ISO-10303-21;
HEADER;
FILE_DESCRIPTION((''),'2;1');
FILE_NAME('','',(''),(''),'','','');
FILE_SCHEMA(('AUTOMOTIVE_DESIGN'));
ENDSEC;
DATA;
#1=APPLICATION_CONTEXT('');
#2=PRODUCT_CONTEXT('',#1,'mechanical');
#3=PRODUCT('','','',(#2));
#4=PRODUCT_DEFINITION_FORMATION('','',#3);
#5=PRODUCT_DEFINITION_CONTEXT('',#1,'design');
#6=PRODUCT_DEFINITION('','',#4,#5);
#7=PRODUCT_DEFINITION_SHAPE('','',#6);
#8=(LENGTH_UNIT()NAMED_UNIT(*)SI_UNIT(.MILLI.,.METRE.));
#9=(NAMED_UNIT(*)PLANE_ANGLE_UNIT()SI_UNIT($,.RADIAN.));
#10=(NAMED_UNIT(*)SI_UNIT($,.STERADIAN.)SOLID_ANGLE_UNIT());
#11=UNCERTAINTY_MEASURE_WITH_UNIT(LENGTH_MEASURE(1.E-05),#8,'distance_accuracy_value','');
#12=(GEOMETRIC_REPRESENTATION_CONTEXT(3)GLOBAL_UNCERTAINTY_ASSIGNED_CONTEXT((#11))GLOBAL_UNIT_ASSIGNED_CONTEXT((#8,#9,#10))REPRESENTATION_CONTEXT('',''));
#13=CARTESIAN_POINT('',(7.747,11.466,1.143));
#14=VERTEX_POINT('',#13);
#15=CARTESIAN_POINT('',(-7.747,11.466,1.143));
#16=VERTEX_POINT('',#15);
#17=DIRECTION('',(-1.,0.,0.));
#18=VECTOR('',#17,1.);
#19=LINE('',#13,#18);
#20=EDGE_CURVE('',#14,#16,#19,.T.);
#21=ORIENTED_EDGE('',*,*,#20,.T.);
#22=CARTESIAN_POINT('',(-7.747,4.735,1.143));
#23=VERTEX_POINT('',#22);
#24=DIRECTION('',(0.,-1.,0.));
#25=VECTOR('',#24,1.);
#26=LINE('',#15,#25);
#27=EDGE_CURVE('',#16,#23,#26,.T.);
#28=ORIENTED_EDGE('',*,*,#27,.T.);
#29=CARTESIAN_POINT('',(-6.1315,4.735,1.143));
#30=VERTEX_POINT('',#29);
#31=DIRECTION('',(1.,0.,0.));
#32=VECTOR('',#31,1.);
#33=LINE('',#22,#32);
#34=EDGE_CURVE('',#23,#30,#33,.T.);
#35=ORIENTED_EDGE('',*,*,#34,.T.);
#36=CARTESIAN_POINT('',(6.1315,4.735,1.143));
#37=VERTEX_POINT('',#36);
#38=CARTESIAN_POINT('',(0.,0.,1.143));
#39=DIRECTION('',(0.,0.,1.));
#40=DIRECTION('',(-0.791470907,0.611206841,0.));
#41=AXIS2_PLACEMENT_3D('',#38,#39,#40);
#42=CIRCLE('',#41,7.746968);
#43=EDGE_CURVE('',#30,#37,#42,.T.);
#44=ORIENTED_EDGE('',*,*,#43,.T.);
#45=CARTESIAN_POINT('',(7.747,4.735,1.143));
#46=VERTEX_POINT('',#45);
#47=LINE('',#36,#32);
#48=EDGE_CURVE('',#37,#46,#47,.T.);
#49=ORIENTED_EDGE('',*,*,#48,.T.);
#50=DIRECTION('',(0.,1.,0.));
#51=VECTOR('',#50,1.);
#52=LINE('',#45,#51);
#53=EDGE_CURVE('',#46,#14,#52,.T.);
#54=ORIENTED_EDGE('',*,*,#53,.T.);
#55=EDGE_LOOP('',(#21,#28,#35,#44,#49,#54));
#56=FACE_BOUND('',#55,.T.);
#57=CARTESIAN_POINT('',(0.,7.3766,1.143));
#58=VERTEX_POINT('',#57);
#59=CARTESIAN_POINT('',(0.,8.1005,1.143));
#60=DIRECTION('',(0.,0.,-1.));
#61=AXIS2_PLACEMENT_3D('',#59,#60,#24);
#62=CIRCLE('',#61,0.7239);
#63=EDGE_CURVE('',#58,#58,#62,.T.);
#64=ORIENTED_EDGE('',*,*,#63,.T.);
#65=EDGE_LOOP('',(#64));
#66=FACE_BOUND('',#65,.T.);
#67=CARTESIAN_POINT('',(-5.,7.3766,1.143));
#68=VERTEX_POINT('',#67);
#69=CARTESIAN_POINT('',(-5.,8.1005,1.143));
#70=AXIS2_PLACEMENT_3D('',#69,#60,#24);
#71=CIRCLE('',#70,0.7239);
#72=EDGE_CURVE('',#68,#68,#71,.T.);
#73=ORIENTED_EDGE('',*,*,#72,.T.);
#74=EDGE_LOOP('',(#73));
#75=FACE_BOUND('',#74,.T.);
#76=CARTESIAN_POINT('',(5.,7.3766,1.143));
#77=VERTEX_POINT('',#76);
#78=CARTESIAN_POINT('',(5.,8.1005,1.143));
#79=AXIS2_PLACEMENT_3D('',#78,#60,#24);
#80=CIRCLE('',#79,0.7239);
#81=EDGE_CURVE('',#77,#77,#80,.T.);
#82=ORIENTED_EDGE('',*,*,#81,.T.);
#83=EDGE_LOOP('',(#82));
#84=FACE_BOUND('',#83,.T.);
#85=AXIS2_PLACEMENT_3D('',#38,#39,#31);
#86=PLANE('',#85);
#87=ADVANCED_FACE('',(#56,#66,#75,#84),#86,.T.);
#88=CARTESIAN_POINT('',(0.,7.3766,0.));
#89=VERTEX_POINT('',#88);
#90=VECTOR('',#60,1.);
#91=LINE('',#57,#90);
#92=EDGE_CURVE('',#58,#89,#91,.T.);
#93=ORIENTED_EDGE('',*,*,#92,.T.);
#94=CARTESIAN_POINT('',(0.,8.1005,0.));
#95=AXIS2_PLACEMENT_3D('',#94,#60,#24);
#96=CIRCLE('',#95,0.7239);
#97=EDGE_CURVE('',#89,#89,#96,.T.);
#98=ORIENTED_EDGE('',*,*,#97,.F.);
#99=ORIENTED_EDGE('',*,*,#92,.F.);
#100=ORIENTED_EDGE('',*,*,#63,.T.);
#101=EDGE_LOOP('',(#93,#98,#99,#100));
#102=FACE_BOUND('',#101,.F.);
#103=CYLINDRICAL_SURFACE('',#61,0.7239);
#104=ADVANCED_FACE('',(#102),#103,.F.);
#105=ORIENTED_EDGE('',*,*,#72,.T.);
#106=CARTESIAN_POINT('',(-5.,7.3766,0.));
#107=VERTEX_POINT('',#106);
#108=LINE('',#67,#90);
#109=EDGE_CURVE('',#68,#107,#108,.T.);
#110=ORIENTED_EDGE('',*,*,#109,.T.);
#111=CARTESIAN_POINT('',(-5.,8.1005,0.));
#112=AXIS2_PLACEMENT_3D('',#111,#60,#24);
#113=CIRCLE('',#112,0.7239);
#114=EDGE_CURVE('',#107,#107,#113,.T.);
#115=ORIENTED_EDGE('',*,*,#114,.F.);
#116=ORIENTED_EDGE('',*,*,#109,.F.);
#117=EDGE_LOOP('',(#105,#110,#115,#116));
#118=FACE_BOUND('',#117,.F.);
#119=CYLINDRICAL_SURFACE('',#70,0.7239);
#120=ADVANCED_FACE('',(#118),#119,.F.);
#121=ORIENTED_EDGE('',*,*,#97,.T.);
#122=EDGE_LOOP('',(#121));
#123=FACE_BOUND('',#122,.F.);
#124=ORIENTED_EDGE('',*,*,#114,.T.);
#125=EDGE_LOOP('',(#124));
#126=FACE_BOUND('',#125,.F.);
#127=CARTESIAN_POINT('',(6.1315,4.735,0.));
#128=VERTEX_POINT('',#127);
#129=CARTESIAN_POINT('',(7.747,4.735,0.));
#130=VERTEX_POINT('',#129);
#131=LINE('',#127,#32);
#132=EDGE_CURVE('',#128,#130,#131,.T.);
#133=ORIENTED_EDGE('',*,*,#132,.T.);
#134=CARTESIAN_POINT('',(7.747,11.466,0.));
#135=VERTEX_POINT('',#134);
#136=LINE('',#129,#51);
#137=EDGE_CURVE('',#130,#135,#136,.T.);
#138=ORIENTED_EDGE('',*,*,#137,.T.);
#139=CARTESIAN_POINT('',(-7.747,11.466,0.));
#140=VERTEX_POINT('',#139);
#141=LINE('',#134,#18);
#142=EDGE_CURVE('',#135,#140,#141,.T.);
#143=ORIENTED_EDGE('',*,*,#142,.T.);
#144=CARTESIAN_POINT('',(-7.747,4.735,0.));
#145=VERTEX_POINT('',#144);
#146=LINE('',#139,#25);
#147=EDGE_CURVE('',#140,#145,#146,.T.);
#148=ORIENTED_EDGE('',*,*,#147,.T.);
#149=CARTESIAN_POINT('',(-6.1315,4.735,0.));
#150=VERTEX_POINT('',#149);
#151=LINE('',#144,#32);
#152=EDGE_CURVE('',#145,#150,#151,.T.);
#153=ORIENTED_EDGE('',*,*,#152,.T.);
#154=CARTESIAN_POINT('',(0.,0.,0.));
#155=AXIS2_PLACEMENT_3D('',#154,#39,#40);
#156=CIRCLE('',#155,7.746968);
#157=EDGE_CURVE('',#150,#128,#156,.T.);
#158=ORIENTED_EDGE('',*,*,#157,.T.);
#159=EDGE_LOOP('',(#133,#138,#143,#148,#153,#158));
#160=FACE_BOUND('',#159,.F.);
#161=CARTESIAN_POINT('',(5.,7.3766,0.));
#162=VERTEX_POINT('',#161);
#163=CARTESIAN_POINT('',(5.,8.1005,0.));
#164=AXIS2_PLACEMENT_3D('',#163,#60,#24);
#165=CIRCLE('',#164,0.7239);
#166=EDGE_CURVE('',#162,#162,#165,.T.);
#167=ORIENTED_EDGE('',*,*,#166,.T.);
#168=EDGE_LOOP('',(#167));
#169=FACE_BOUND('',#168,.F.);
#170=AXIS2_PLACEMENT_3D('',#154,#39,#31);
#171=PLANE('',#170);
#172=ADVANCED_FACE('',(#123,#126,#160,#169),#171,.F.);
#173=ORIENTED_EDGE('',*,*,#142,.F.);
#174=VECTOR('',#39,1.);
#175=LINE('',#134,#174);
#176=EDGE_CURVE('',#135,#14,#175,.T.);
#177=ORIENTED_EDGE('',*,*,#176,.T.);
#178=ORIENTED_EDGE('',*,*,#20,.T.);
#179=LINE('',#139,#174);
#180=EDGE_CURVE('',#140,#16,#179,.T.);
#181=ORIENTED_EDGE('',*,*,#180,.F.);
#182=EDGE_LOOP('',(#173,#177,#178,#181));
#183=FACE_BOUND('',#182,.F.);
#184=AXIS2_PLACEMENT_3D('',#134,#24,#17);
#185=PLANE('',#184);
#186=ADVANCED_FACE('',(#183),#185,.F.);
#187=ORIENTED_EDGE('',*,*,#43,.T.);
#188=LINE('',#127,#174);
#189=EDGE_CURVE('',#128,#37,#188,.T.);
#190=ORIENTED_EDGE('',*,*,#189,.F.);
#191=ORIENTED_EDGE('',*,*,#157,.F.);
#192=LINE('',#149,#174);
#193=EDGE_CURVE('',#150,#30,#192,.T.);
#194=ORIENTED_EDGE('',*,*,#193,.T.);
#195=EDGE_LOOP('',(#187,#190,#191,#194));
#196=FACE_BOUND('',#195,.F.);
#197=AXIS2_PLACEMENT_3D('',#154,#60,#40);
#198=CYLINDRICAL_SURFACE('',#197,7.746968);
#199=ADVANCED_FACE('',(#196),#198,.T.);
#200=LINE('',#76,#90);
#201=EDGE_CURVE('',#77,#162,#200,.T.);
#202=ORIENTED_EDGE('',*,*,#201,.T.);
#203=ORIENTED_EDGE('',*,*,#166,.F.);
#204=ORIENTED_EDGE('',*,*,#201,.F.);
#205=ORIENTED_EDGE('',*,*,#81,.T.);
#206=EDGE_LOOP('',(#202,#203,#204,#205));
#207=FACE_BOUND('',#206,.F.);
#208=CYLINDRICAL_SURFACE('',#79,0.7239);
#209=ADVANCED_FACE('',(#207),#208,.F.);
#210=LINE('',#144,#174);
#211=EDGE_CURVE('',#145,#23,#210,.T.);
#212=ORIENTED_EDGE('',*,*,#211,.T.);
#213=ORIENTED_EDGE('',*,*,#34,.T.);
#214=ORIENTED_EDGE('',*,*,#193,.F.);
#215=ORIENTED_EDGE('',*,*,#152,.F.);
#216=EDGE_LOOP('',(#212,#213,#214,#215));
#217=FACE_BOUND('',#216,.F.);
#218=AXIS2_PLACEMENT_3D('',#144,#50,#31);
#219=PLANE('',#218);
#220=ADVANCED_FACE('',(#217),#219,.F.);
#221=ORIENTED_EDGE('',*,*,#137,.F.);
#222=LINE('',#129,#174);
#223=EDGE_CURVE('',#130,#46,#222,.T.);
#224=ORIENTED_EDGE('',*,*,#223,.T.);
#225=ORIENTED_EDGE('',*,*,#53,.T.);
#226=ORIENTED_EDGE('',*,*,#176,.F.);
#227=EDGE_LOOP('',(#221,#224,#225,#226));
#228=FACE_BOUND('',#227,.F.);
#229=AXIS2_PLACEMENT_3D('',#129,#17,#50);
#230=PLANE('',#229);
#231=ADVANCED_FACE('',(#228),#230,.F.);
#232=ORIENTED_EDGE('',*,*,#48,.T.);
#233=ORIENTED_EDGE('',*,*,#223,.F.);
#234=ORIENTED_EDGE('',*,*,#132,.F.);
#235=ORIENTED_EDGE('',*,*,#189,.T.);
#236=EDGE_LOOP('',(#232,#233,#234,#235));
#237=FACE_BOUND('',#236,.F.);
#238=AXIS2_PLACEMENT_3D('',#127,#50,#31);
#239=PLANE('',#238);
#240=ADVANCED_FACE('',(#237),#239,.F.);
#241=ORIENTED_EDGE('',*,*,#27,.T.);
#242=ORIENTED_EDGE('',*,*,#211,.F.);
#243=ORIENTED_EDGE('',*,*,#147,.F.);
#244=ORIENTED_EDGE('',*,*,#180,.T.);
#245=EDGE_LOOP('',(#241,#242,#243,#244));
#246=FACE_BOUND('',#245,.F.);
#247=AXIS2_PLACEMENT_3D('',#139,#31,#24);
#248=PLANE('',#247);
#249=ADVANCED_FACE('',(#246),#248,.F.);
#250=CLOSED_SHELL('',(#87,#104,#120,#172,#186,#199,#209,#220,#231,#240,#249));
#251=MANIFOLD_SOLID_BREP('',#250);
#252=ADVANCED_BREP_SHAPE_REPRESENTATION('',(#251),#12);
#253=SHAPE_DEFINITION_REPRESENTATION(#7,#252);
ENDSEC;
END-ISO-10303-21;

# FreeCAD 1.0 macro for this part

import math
import FreeCAD as App
import Part
import Sketcher

V = App.Vector
Q = App.Units.Quantity

doc = App.newDocument("Part")
body = doc.addObject("PartDesign::Body", "Body")

sketch1 = doc.addObject("Sketcher::SketchObject", "Sketch")
body.addObject(sketch1)
sketch1.AttachmentSupport = (doc.XY_Plane, [""])
sketch1.MapMode = "FlatFace"
sketch1.addGeometry(Part.LineSegment(V(-7.747, 4.735, 0), V(-6.1315, 4.735, 0)), False)
sketch1.addGeometry(Part.ArcOfCircle(Part.Circle(V(0, 0, 0), V(0, 0, 1), 7.746968), math.radians(142.323183), math.radians(397.676817)), False)
sketch1.addGeometry(Part.LineSegment(V(6.1315, 4.735, 0), V(7.747, 4.735, 0)), False)
sketch1.addGeometry(Part.LineSegment(V(7.747, 4.735, 0), V(7.747, 11.466, 0)), False)
sketch1.addGeometry(Part.LineSegment(V(7.747, 11.466, 0), V(-7.747, 11.466, 0)), False)
sketch1.addGeometry(Part.LineSegment(V(-7.747, 11.466, 0), V(-7.747, 4.735, 0)), False)
sketch1.addConstraint(Sketcher.Constraint("Coincident", 0, 2, 1, 1))
sketch1.addConstraint(Sketcher.Constraint("Coincident", 1, 2, 2, 1))
sketch1.addConstraint(Sketcher.Constraint("Coincident", 2, 2, 3, 1))
sketch1.addConstraint(Sketcher.Constraint("Coincident", 3, 2, 4, 1))
sketch1.addConstraint(Sketcher.Constraint("Coincident", 4, 2, 5, 1))
sketch1.addConstraint(Sketcher.Constraint("Coincident", 5, 2, 0, 1))
sketch1.addConstraint(Sketcher.Constraint("Horizontal", 0))
sketch1.addConstraint(Sketcher.Constraint("Horizontal", 2))
sketch1.addConstraint(Sketcher.Constraint("Vertical", 3))
sketch1.addConstraint(Sketcher.Constraint("Horizontal", 4))
sketch1.addConstraint(Sketcher.Constraint("Vertical", 5))
sketch1.addConstraint(Sketcher.Constraint("Coincident", 1, 3, -1, 1))
sketch1.addConstraint(Sketcher.Constraint("Symmetric", 2, 2, 5, 2, -2))
sketch1.addConstraint(Sketcher.Constraint("Radius", 1, Q("0.305 in")))
sketch1.addConstraint(Sketcher.Constraint("DistanceX", 4, 2, 4, 1, Q("0.61 in")))
sketch1.addConstraint(Sketcher.Constraint("DistanceY", 3, 1, 3, 2, Q("0.265 in")))
sketch1.addConstraint(Sketcher.Constraint("DistanceX", 0, 1, 0, 2, Q("0.0636 in")))
pad1 = doc.addObject("PartDesign::Pad", "Pad")
body.addObject(pad1)
pad1.Profile = sketch1
pad1.Length = Q("0.045 in")

sketch2 = doc.addObject("Sketcher::SketchObject", "Sketch001")
body.addObject(sketch2)
sketch2.AttachmentSupport = (doc.XY_Plane, [""])
sketch2.MapMode = "FlatFace"
sketch2.AttachmentOffset = App.Placement(V(0, 0, 0.045 * 25.4), App.Rotation())
sketch2.addGeometry(Part.Circle(V(-5, 8.1005, 0), V(0, 0, 1), 0.7239), False)
sketch2.addGeometry(Part.Circle(V(0, 8.1005, 0), V(0, 0, 1), 0.7239), False)
sketch2.addGeometry(Part.Circle(V(5, 8.1005, 0), V(0, 0, 1), 0.7239), False)
sketch2.addConstraint(Sketcher.Constraint("Equal", 0, 1))
sketch2.addConstraint(Sketcher.Constraint("Equal", 1, 2))
sketch2.addConstraint(Sketcher.Constraint("Symmetric", 0, 3, 2, 3, -2))
sketch2.addConstraint(Sketcher.Constraint("PointOnObject", 1, 3, -2))
sketch2.addConstraint(Sketcher.Constraint("Horizontal", 0, 3, 1, 3))
sketch2.addConstraint(Sketcher.Constraint("Diameter", 0, Q("0.057 in")))
sketch2.addConstraint(Sketcher.Constraint("DistanceX", 0, 3, 2, 3, Q("0.3937 in")))
sketch2.addConstraint(Sketcher.Constraint("DistanceY", -1, 1, 0, 3, Q("8.1005 mm")))
doc.recompute()
hole = doc.addObject("PartDesign::Hole", "Hole")
body.addObject(hole)
hole.Profile = sketch2
hole.ThreadType = "None"
hole.Diameter = Q("0.057 in")
hole.DepthType = "ThroughAll"

doc.recompute()
